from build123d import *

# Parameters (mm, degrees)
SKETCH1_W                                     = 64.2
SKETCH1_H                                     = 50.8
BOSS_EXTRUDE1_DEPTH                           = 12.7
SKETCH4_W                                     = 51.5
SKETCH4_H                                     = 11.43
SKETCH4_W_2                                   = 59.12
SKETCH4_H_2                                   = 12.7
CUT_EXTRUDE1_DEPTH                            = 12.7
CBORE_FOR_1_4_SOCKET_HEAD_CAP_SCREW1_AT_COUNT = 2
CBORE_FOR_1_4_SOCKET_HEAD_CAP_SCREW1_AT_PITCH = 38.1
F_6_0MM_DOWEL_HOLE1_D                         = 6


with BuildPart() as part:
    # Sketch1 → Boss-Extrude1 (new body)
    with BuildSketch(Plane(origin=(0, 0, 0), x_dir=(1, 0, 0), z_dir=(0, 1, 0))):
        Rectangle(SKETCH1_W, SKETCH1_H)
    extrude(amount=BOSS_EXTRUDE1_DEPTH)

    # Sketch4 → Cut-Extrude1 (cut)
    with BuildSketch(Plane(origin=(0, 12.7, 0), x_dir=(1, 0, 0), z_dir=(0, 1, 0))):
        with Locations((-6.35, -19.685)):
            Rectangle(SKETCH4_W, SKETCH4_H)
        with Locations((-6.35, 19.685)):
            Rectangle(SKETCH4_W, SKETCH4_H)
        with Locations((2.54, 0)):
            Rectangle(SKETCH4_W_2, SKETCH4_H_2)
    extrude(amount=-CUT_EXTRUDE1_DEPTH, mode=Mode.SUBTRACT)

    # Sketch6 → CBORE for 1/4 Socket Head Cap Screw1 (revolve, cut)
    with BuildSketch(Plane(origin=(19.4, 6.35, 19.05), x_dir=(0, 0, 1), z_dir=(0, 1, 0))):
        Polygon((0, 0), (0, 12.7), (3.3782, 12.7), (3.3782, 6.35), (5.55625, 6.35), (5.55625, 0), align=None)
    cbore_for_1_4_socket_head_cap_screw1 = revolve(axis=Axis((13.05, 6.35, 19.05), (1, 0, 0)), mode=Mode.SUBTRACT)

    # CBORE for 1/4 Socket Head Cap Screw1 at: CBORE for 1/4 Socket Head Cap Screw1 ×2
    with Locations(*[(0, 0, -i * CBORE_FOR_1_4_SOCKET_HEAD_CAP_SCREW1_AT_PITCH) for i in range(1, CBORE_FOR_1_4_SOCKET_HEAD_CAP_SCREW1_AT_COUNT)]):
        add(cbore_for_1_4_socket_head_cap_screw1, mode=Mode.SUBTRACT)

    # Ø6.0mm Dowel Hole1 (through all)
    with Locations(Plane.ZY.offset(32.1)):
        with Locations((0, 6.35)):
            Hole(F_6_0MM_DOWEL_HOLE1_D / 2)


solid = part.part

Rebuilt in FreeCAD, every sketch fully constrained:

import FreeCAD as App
import Part
import Sketcher

V = App.Vector
Q = App.Units.Quantity


def add_polygon(sketch, points):
    """Adds a closed chain of lines whose ends are joined by coincident constraints."""
    first, n = sketch.GeometryCount, len(points)
    for a, b in zip(points, points[1:] + points[:1]):
        sketch.addGeometry(Part.LineSegment(App.Vector(*a, 0), App.Vector(*b, 0)), False)
    for i in range(n):
        sketch.addConstraint(Sketcher.Constraint("Coincident", first + i, 2, first + (i + 1) % n, 1))

doc = App.newDocument("Part")
body = doc.addObject("PartDesign::Body", "Body")

# Sketch on XZ plane
sketch1 = body.newObject("Sketcher::SketchObject", "Sketch")
sketch1.AttachmentSupport = (doc.getObject("XZ_Plane"), [""])
sketch1.MapMode = "FlatFace"
add_polygon(sketch1, [(-32.1, -25.4), (-32.1, 25.4), (32.1, 25.4), (32.1, -25.4)])  # lines 0-3
sketch1.addConstraint([
    Sketcher.Constraint("Vertical", 0),
    Sketcher.Constraint("Horizontal", 1),
    Sketcher.Constraint("Vertical", 2),
    Sketcher.Constraint("Horizontal", 3),
    Sketcher.Constraint("Symmetric", 0, 2, 2, 2, -1, 1),
    Sketcher.Constraint("DistanceY", 0, 1, 0, 2, Q("2 in")),
    Sketcher.Constraint("DistanceX", 1, 1, 1, 2, Q("64.2 mm")),
])
pad1 = body.newObject("PartDesign::Pad", "Pad")
pad1.Profile = sketch1
pad1.Length = Q("0.5 in")
pad1.Reversed = True

# Sketch on XZ plane
sketch2 = body.newObject("Sketcher::SketchObject", "Sketch001")
sketch2.AttachmentSupport = (doc.getObject("XZ_Plane"), [""])
sketch2.MapMode = "FlatFace"
sketch2.AttachmentOffset = App.Placement(V(0, 0, -0.5 * 25.4), App.Rotation())
add_polygon(sketch2, [(-32.1, 13.97), (-32.1, 25.4), (19.4, 25.4), (19.4, 13.97)])  # lines 0-3
add_polygon(sketch2, [(-32.1, -25.4), (-32.1, -13.97), (19.4, -13.97), (19.4, -25.4)])  # lines 4-7
add_polygon(sketch2, [(-27.02, -6.35), (-27.02, 6.35), (32.1, 6.35), (32.1, -6.35)])  # lines 8-11
sketch2.addConstraint([
    Sketcher.Constraint("Vertical", 0),
    Sketcher.Constraint("Horizontal", 1),
    Sketcher.Constraint("Vertical", 2),
    Sketcher.Constraint("Horizontal", 3),
    Sketcher.Constraint("Vertical", 4),
    Sketcher.Constraint("Horizontal", 5),
    Sketcher.Constraint("Vertical", 6),
    Sketcher.Constraint("Horizontal", 7),
    Sketcher.Constraint("Vertical", 8),
    Sketcher.Constraint("Horizontal", 9),
    Sketcher.Constraint("Vertical", 10),
    Sketcher.Constraint("Horizontal", 11),
    Sketcher.Constraint("Symmetric", 3, 2, 4, 2, -1),
    Sketcher.Constraint("Symmetric", 1, 2, 6, 2, -1),
    Sketcher.Constraint("DistanceY", 8, 1, 8, 2, Q("0.5 in")),
    Sketcher.Constraint("DistanceY", -1, 1, 0, 2, Q("1 in")),
    Sketcher.Constraint("DistanceY", 0, 1, 0, 2, Q("0.45 in")),
    Sketcher.Constraint("DistanceX", 3, 2, 8, 2, Q("0.2 in")),
    Sketcher.Constraint("DistanceY", 8, 2, 3, 2, Q("0.3 in")),
    Sketcher.Constraint("DistanceX", 2, 2, 9, 2, Q("0.5 in")),
    Sketcher.Constraint("DistanceX", 1, 1, 1, 2, Q("51.5 mm")),
    Sketcher.Constraint("DistanceX", 0, 2, -1, 1, Q("32.1 mm")),
])
pocket1 = body.newObject("PartDesign::Pocket", "Pocket")
pocket1.Profile = sketch2
pocket1.Length = Q("0.5 in")
pocket1.Reversed = True

# Sketch on XZ plane
sketch3 = body.newObject("Sketcher::SketchObject", "Sketch002")
sketch3.AttachmentSupport = (doc.getObject("XZ_Plane"), [""])
sketch3.MapMode = "FlatFace"
sketch3.AttachmentOffset = App.Placement(V(0, 0, -0.25 * 25.4), App.Rotation())
add_polygon(sketch3, [(32.1, 19.05), (19.4, 19.05), (19.4, 24.60625), (25.75, 24.60625), (25.75, 22.4282), (32.1, 22.4282)])  # lines 0-5
sketch3.addGeometry(Part.LineSegment(V(19.4, 19.05, 0), V(32.1, 19.05, 0)), True)  # axis
sketch3.addConstraint([
    Sketcher.Constraint("Horizontal", 0),
    Sketcher.Constraint("Vertical", 1),
    Sketcher.Constraint("Horizontal", 2),
    Sketcher.Constraint("Vertical", 3),
    Sketcher.Constraint("Horizontal", 4),
    Sketcher.Constraint("Vertical", 5),
    Sketcher.Constraint("Horizontal", 6),
    Sketcher.Constraint("Coincident", 6, 1, 0, 2),
    Sketcher.Constraint("Vertical", 4, 2, 6, 2),
    Sketcher.Constraint("Equal", 2, 4),
    Sketcher.Constraint("DistanceX", 0, 2, 0, 1, Q("0.5 in")),
    Sketcher.Constraint("DistanceY", 1, 1, 1, 2, Q("0.21875 in")),
    Sketcher.Constraint("DistanceY", 5, 2, 5, 1, Q("0.133 in")),
    Sketcher.Constraint("DistanceY", -1, 1, 0, 2, Q("0.75 in")),
    Sketcher.Constraint("DistanceX", -1, 1, 0, 2, Q("19.4 mm")),
])
groove = body.newObject("PartDesign::Groove", "Groove")
groove.Profile = sketch3
groove.ReferenceAxis = (sketch3, ["Axis0"])
groove.Angle = 360
doc.recompute()

linearpattern = body.newObject("PartDesign::LinearPattern", "LinearPattern")
linearpattern.Originals = [groove]
linearpattern.Direction = (doc.getObject("Z_Axis"), [""])
linearpattern.Mode = "offset"
linearpattern.Offset = Q("1.5 in")
linearpattern.Occurrences = 2
linearpattern.Reversed = True
body.Tip = linearpattern

# Sketch on YZ plane
sketch4 = body.newObject("Sketcher::SketchObject", "Sketch003")
sketch4.AttachmentSupport = (doc.getObject("YZ_Plane"), [""])
sketch4.MapMode = "FlatFace"
sketch4.AttachmentOffset = App.Placement(V(0, 0, -32.1), App.Rotation())
sketch4.addGeometry(Part.Circle(V(6.35, 0, 0), V(0, 0, 1), 3), False)
sketch4.addConstraint([
    Sketcher.Constraint("PointOnObject", 0, 3, -1),
    Sketcher.Constraint("Diameter", 0, Q("6 mm")),
    Sketcher.Constraint("DistanceX", -1, 1, 0, 3, Q("0.25 in")),
])
doc.recompute()
hole = body.newObject("PartDesign::Hole", "Hole")
hole.Profile = sketch4
hole.ThreadType = "None"
hole.Diameter = 6
hole.DepthType = "ThroughAll"
hole.Reversed = True

doc.recompute()
